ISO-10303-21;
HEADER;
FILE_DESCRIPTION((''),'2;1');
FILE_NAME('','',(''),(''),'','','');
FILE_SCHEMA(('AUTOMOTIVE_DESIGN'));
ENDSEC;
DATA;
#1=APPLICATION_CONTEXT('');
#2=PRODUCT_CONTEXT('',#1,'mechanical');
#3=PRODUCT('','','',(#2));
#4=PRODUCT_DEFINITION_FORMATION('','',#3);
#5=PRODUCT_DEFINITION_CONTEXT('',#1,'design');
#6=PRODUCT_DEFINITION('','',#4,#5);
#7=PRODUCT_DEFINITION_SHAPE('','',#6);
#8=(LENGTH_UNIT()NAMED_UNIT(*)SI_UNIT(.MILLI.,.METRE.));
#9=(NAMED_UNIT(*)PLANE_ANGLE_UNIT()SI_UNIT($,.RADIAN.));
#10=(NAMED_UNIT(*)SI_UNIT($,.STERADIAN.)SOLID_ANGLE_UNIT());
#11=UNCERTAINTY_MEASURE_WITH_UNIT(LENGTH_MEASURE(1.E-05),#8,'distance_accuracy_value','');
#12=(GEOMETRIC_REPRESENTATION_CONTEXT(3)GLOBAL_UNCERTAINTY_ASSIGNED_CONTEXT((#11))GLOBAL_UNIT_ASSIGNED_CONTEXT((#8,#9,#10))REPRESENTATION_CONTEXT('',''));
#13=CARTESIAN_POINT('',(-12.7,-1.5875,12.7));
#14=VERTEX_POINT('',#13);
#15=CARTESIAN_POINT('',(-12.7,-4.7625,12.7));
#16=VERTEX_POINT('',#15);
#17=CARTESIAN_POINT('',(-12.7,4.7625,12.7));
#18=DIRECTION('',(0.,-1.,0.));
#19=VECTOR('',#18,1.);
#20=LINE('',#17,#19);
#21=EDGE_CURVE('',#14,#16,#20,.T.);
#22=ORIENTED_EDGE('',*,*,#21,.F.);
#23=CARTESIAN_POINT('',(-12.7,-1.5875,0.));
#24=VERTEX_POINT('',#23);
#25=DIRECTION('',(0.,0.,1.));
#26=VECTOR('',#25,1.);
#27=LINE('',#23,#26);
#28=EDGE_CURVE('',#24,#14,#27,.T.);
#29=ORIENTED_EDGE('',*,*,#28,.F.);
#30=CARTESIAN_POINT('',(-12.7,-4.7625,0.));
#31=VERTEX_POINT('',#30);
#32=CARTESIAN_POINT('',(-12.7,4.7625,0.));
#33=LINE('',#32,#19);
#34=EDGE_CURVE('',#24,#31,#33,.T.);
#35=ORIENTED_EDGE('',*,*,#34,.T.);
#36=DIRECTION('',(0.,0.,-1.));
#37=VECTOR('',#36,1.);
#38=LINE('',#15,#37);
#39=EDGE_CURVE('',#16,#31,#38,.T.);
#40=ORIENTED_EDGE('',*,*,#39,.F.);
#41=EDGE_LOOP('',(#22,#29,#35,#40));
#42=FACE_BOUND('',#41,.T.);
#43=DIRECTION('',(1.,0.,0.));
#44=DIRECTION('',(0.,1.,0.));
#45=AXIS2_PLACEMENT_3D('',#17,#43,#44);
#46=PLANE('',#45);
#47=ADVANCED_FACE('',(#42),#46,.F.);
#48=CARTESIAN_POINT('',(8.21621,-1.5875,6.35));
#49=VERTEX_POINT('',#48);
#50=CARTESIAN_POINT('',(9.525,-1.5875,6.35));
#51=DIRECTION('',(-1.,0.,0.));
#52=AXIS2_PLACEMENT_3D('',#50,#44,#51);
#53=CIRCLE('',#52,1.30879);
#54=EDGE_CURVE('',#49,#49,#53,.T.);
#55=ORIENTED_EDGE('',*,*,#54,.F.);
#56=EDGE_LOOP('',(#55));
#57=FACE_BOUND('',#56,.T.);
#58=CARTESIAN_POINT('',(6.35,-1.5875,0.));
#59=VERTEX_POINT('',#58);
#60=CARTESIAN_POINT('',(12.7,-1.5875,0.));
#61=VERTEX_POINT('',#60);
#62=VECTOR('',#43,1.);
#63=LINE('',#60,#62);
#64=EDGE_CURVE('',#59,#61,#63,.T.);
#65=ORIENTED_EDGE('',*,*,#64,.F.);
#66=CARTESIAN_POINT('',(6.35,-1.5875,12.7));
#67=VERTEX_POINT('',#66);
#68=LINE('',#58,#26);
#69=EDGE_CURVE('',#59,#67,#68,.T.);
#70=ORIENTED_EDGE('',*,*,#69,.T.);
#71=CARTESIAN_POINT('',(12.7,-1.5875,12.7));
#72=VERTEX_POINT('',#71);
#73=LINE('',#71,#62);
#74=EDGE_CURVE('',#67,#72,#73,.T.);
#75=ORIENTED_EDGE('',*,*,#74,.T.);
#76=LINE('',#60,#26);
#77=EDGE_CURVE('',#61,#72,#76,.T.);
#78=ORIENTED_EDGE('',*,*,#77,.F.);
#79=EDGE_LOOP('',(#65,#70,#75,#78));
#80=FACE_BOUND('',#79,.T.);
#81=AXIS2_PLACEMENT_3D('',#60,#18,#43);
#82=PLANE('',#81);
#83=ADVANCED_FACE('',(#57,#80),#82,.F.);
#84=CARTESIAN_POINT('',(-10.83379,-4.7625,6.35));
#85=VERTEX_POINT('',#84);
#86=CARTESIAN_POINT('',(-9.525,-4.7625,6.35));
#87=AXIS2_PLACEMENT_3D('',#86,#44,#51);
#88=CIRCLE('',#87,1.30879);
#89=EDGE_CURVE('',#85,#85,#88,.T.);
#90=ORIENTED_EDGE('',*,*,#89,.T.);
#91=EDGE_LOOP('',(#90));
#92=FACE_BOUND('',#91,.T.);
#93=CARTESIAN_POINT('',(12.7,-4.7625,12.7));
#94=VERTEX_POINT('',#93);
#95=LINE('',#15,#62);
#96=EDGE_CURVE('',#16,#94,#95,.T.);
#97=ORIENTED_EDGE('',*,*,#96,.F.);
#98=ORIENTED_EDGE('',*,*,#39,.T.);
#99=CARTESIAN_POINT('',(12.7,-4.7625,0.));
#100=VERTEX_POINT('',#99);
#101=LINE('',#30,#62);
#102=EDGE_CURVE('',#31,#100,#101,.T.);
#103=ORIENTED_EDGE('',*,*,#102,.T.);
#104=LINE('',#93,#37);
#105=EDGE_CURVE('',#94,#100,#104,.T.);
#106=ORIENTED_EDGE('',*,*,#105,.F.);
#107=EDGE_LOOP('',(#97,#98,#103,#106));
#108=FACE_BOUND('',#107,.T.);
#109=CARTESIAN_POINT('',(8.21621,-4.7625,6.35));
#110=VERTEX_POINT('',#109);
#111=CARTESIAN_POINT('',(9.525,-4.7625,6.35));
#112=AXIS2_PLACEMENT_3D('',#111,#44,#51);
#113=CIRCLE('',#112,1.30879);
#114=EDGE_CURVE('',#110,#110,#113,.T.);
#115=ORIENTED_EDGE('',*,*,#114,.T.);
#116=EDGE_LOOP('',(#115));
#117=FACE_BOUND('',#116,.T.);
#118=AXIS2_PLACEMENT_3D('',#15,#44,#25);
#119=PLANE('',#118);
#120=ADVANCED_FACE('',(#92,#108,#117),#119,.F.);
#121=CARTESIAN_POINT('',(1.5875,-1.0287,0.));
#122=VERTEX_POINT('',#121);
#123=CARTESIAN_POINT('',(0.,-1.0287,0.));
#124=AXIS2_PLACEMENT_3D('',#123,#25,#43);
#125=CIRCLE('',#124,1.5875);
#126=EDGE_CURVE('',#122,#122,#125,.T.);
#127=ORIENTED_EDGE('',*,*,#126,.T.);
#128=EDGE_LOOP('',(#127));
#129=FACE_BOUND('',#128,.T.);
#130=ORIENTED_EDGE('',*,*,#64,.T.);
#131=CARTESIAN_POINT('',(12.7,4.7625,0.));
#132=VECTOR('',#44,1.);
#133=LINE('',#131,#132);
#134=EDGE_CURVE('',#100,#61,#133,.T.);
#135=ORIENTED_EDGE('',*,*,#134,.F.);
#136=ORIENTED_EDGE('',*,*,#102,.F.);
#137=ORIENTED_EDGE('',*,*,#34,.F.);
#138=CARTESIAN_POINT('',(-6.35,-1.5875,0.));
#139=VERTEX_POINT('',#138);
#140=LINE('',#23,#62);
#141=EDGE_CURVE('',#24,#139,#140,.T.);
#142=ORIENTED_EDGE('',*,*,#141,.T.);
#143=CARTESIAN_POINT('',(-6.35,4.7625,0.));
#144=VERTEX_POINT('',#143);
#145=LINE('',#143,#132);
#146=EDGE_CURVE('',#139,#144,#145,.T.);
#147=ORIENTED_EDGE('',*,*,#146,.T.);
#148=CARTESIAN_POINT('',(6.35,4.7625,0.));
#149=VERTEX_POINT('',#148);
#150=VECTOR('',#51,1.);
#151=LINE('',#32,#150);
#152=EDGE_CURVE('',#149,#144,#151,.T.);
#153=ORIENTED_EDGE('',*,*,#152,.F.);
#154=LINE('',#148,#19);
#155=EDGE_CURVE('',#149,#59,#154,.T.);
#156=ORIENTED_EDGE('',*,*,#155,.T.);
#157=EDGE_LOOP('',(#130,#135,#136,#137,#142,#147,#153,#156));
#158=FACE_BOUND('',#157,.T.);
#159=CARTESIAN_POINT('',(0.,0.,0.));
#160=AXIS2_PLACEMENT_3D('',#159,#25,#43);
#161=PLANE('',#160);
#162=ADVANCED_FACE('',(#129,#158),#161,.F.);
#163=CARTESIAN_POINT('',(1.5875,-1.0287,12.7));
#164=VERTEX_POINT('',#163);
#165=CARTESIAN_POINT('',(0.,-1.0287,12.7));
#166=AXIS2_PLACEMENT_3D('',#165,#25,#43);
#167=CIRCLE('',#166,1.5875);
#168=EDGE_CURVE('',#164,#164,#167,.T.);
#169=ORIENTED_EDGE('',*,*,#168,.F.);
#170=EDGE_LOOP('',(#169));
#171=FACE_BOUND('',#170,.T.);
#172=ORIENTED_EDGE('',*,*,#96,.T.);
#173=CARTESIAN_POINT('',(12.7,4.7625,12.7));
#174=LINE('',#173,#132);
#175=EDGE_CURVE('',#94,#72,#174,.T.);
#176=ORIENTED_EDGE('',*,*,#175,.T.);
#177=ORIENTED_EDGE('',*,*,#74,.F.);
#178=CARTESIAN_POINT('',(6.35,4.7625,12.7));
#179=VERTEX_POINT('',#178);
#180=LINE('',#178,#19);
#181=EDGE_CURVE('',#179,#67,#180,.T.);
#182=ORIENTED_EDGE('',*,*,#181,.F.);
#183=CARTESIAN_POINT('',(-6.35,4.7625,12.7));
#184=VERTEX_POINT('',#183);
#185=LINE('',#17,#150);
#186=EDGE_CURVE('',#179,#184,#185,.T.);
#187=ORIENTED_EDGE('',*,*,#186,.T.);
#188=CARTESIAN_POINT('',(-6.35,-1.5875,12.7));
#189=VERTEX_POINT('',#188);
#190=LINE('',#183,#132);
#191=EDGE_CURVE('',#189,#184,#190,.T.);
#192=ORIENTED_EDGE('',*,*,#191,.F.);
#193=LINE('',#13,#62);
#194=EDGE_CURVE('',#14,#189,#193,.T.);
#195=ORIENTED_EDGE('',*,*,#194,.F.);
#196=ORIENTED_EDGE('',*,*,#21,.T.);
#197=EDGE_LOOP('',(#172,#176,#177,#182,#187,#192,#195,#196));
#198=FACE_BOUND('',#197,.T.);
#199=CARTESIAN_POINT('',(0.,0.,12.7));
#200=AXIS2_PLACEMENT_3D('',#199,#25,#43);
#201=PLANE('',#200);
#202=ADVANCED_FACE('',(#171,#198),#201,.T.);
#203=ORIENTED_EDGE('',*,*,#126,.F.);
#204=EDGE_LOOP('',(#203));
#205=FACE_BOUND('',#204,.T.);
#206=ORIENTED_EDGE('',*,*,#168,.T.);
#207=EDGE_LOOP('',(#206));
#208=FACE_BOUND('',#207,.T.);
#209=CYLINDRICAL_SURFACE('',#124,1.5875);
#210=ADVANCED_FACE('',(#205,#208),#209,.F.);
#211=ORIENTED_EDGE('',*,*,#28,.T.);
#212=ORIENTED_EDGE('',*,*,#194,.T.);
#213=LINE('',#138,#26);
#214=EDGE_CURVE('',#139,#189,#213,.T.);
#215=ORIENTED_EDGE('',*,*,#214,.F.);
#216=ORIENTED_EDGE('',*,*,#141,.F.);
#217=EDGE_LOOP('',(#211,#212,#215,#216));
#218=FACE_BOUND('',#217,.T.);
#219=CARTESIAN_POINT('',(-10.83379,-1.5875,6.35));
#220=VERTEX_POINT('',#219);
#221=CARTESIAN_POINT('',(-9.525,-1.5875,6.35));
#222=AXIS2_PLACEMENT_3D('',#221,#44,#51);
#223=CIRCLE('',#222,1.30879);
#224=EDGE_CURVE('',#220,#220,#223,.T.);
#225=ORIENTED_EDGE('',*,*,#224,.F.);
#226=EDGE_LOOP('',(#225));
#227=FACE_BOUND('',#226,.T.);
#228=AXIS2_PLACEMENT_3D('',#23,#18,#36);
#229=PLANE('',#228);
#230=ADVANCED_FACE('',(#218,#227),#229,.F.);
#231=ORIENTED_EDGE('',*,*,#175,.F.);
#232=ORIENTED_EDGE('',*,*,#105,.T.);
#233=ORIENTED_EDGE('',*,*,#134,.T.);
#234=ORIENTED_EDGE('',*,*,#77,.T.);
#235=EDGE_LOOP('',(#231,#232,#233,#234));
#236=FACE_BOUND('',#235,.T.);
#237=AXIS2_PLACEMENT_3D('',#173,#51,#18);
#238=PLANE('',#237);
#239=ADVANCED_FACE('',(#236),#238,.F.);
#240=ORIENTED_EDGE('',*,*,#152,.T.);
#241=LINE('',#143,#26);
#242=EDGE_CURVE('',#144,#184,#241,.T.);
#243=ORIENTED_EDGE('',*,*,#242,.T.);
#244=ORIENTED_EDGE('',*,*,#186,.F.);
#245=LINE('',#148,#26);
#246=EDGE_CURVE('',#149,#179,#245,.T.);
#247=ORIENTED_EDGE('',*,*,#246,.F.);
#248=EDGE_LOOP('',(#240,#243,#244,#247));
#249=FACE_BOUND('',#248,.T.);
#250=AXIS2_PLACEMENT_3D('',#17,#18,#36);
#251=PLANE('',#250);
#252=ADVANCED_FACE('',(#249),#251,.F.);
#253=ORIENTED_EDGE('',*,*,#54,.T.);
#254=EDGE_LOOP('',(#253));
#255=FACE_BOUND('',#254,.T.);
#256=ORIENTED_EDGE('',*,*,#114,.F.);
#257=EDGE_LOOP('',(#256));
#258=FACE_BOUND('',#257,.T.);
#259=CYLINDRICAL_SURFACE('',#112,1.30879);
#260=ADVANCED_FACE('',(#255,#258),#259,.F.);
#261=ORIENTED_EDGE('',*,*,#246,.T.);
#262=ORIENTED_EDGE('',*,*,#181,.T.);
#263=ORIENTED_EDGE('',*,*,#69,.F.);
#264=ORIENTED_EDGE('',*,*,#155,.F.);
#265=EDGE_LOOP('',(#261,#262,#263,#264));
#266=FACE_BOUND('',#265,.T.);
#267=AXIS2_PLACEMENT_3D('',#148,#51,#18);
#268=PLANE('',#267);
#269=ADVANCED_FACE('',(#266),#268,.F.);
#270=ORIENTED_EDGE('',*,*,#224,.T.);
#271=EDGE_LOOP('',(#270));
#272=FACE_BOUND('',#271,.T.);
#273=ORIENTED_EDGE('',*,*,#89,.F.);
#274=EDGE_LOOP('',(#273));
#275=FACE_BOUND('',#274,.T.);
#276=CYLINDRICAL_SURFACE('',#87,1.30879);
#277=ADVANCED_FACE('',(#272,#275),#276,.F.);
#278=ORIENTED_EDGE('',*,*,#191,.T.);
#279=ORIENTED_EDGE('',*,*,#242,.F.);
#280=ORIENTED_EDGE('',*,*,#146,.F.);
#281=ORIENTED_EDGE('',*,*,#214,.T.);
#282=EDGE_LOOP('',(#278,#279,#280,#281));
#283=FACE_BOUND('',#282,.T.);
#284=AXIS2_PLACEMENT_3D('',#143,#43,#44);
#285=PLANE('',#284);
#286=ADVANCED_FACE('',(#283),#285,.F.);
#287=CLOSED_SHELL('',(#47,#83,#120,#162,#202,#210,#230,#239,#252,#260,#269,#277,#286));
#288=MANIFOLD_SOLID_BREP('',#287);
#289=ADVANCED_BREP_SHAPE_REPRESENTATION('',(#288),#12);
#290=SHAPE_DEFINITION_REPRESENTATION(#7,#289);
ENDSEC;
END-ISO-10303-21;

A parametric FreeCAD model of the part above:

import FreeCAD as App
import Part
import Sketcher

V = App.Vector
Q = App.Units.Quantity


def add_polygon(sketch, points):
    """Adds a closed chain of lines whose ends are joined by coincident constraints."""
    first, n = sketch.GeometryCount, len(points)
    for a, b in zip(points, points[1:] + points[:1]):
        sketch.addGeometry(Part.LineSegment(App.Vector(*a, 0), App.Vector(*b, 0)), False)
    for i in range(n):
        sketch.addConstraint(Sketcher.Constraint("Coincident", first + i, 2, first + (i + 1) % n, 1))

doc = App.newDocument("Part")
body = doc.addObject("PartDesign::Body", "Body")

# Sketch on XY plane
sketch1 = body.newObject("Sketcher::SketchObject", "Sketch")
sketch1.AttachmentSupport = (doc.getObject("XY_Plane"), [""])
sketch1.MapMode = "FlatFace"
add_polygon(sketch1, [(-13, 5), (-13, -5), (13, -5), (13, 5)])  # lines 0-3
sketch1.addConstraint([
    Sketcher.Constraint("Vertical", 0),
    Sketcher.Constraint("Horizontal", 1),
    Sketcher.Constraint("Vertical", 2),
    Sketcher.Constraint("Horizontal", 3),
    Sketcher.Constraint("Symmetric", 0, 2, 2, 2, -1, 1),
    Sketcher.Constraint("DistanceX", 1, 1, 1, 2, Q("1 in")),
    Sketcher.Constraint("DistanceY", 0, 2, 0, 1, Q("0.375 in")),
])
pad1 = body.newObject("PartDesign::Pad", "Pad")
pad1.Profile = sketch1
pad1.Length = Q("0.5 in")

# Sketch on XY plane
sketch2 = body.newObject("Sketcher::SketchObject", "Sketch001")
sketch2.AttachmentSupport = (doc.getObject("XY_Plane"), [""])
sketch2.MapMode = "FlatFace"
sketch2.AttachmentOffset = App.Placement(V(0, 0, 0.5 * 25.4), App.Rotation())
sketch2.addGeometry(Part.Circle(V(0, -1, 0), V(0, 0, 1), 1.6), False)  # 0
add_polygon(sketch2, [(-12.7, 4.8), (-12.7, -1.6), (-6.3, -1.6), (-6.3, 4.8)])  # lines 1-4
add_polygon(sketch2, [(6.3, 4.8), (6.3, -1.6), (12.7, -1.6), (12.7, 4.8)])  # lines 5-8
sketch2.addConstraint([
    Sketcher.Constraint("Vertical", 1),
    Sketcher.Constraint("Horizontal", 2),
    Sketcher.Constraint("Vertical", 3),
    Sketcher.Constraint("Horizontal", 4),
    Sketcher.Constraint("Vertical", 5),
    Sketcher.Constraint("Horizontal", 6),
    Sketcher.Constraint("Vertical", 7),
    Sketcher.Constraint("Horizontal", 8),
    Sketcher.Constraint("Symmetric", 2, 2, 5, 2, -2),
    Sketcher.Constraint("Symmetric", 4, 2, 7, 2, -2),
    Sketcher.Constraint("PointOnObject", 0, 3, -2),
    Sketcher.Constraint("Equal", 8, 1),
    Sketcher.Constraint("Diameter", 0, Q("0.125 in")),
    Sketcher.Constraint("DistanceX", 1, 2, 6, 2, Q("1 in")),
    Sketcher.Constraint("DistanceX", 2, 1, 2, 2, Q("0.25 in")),
    Sketcher.Constraint("DistanceY", 1, 2, -1, 1, Q("0.0625 in")),
    Sketcher.Constraint("DistanceY", 1, 2, 0, 3, Q("0.022 in")),
])
pocket1 = body.newObject("PartDesign::Pocket", "Pocket")
pocket1.Profile = sketch2
pocket1.Type = "ThroughAll"

# Sketch on XZ plane
sketch3 = body.newObject("Sketcher::SketchObject", "Sketch002")
sketch3.AttachmentSupport = (doc.getObject("XZ_Plane"), [""])
sketch3.MapMode = "FlatFace"
sketch3.AttachmentOffset = App.Placement(V(0, 0, 0.0625 * 25.4), App.Rotation())
sketch3.addGeometry([
    Part.Circle(V(9.5, 6.3, 0), V(0, 0, 1), 1.3),
    Part.Circle(V(-9.5, 6.3, 0), V(0, 0, 1), 1.3),
], False)
sketch3.addConstraint([
    Sketcher.Constraint("Equal", 0, 1),
    Sketcher.Constraint("Symmetric", 0, 3, 1, 3, -2),
    Sketcher.Constraint("DistanceY", -1, 1, 0, 3, Q("0.25 in")),
    Sketcher.Constraint("DistanceX", 1, 3, 0, 3, Q("0.75 in")),
    Sketcher.Constraint("Diameter", 0, Q("2.61758 mm")),
])
pocket2 = body.newObject("PartDesign::Pocket", "Pocket001")
pocket2.Profile = sketch3
pocket2.Type = "ThroughAll"
pocket2.Reversed = True

doc.recompute()
